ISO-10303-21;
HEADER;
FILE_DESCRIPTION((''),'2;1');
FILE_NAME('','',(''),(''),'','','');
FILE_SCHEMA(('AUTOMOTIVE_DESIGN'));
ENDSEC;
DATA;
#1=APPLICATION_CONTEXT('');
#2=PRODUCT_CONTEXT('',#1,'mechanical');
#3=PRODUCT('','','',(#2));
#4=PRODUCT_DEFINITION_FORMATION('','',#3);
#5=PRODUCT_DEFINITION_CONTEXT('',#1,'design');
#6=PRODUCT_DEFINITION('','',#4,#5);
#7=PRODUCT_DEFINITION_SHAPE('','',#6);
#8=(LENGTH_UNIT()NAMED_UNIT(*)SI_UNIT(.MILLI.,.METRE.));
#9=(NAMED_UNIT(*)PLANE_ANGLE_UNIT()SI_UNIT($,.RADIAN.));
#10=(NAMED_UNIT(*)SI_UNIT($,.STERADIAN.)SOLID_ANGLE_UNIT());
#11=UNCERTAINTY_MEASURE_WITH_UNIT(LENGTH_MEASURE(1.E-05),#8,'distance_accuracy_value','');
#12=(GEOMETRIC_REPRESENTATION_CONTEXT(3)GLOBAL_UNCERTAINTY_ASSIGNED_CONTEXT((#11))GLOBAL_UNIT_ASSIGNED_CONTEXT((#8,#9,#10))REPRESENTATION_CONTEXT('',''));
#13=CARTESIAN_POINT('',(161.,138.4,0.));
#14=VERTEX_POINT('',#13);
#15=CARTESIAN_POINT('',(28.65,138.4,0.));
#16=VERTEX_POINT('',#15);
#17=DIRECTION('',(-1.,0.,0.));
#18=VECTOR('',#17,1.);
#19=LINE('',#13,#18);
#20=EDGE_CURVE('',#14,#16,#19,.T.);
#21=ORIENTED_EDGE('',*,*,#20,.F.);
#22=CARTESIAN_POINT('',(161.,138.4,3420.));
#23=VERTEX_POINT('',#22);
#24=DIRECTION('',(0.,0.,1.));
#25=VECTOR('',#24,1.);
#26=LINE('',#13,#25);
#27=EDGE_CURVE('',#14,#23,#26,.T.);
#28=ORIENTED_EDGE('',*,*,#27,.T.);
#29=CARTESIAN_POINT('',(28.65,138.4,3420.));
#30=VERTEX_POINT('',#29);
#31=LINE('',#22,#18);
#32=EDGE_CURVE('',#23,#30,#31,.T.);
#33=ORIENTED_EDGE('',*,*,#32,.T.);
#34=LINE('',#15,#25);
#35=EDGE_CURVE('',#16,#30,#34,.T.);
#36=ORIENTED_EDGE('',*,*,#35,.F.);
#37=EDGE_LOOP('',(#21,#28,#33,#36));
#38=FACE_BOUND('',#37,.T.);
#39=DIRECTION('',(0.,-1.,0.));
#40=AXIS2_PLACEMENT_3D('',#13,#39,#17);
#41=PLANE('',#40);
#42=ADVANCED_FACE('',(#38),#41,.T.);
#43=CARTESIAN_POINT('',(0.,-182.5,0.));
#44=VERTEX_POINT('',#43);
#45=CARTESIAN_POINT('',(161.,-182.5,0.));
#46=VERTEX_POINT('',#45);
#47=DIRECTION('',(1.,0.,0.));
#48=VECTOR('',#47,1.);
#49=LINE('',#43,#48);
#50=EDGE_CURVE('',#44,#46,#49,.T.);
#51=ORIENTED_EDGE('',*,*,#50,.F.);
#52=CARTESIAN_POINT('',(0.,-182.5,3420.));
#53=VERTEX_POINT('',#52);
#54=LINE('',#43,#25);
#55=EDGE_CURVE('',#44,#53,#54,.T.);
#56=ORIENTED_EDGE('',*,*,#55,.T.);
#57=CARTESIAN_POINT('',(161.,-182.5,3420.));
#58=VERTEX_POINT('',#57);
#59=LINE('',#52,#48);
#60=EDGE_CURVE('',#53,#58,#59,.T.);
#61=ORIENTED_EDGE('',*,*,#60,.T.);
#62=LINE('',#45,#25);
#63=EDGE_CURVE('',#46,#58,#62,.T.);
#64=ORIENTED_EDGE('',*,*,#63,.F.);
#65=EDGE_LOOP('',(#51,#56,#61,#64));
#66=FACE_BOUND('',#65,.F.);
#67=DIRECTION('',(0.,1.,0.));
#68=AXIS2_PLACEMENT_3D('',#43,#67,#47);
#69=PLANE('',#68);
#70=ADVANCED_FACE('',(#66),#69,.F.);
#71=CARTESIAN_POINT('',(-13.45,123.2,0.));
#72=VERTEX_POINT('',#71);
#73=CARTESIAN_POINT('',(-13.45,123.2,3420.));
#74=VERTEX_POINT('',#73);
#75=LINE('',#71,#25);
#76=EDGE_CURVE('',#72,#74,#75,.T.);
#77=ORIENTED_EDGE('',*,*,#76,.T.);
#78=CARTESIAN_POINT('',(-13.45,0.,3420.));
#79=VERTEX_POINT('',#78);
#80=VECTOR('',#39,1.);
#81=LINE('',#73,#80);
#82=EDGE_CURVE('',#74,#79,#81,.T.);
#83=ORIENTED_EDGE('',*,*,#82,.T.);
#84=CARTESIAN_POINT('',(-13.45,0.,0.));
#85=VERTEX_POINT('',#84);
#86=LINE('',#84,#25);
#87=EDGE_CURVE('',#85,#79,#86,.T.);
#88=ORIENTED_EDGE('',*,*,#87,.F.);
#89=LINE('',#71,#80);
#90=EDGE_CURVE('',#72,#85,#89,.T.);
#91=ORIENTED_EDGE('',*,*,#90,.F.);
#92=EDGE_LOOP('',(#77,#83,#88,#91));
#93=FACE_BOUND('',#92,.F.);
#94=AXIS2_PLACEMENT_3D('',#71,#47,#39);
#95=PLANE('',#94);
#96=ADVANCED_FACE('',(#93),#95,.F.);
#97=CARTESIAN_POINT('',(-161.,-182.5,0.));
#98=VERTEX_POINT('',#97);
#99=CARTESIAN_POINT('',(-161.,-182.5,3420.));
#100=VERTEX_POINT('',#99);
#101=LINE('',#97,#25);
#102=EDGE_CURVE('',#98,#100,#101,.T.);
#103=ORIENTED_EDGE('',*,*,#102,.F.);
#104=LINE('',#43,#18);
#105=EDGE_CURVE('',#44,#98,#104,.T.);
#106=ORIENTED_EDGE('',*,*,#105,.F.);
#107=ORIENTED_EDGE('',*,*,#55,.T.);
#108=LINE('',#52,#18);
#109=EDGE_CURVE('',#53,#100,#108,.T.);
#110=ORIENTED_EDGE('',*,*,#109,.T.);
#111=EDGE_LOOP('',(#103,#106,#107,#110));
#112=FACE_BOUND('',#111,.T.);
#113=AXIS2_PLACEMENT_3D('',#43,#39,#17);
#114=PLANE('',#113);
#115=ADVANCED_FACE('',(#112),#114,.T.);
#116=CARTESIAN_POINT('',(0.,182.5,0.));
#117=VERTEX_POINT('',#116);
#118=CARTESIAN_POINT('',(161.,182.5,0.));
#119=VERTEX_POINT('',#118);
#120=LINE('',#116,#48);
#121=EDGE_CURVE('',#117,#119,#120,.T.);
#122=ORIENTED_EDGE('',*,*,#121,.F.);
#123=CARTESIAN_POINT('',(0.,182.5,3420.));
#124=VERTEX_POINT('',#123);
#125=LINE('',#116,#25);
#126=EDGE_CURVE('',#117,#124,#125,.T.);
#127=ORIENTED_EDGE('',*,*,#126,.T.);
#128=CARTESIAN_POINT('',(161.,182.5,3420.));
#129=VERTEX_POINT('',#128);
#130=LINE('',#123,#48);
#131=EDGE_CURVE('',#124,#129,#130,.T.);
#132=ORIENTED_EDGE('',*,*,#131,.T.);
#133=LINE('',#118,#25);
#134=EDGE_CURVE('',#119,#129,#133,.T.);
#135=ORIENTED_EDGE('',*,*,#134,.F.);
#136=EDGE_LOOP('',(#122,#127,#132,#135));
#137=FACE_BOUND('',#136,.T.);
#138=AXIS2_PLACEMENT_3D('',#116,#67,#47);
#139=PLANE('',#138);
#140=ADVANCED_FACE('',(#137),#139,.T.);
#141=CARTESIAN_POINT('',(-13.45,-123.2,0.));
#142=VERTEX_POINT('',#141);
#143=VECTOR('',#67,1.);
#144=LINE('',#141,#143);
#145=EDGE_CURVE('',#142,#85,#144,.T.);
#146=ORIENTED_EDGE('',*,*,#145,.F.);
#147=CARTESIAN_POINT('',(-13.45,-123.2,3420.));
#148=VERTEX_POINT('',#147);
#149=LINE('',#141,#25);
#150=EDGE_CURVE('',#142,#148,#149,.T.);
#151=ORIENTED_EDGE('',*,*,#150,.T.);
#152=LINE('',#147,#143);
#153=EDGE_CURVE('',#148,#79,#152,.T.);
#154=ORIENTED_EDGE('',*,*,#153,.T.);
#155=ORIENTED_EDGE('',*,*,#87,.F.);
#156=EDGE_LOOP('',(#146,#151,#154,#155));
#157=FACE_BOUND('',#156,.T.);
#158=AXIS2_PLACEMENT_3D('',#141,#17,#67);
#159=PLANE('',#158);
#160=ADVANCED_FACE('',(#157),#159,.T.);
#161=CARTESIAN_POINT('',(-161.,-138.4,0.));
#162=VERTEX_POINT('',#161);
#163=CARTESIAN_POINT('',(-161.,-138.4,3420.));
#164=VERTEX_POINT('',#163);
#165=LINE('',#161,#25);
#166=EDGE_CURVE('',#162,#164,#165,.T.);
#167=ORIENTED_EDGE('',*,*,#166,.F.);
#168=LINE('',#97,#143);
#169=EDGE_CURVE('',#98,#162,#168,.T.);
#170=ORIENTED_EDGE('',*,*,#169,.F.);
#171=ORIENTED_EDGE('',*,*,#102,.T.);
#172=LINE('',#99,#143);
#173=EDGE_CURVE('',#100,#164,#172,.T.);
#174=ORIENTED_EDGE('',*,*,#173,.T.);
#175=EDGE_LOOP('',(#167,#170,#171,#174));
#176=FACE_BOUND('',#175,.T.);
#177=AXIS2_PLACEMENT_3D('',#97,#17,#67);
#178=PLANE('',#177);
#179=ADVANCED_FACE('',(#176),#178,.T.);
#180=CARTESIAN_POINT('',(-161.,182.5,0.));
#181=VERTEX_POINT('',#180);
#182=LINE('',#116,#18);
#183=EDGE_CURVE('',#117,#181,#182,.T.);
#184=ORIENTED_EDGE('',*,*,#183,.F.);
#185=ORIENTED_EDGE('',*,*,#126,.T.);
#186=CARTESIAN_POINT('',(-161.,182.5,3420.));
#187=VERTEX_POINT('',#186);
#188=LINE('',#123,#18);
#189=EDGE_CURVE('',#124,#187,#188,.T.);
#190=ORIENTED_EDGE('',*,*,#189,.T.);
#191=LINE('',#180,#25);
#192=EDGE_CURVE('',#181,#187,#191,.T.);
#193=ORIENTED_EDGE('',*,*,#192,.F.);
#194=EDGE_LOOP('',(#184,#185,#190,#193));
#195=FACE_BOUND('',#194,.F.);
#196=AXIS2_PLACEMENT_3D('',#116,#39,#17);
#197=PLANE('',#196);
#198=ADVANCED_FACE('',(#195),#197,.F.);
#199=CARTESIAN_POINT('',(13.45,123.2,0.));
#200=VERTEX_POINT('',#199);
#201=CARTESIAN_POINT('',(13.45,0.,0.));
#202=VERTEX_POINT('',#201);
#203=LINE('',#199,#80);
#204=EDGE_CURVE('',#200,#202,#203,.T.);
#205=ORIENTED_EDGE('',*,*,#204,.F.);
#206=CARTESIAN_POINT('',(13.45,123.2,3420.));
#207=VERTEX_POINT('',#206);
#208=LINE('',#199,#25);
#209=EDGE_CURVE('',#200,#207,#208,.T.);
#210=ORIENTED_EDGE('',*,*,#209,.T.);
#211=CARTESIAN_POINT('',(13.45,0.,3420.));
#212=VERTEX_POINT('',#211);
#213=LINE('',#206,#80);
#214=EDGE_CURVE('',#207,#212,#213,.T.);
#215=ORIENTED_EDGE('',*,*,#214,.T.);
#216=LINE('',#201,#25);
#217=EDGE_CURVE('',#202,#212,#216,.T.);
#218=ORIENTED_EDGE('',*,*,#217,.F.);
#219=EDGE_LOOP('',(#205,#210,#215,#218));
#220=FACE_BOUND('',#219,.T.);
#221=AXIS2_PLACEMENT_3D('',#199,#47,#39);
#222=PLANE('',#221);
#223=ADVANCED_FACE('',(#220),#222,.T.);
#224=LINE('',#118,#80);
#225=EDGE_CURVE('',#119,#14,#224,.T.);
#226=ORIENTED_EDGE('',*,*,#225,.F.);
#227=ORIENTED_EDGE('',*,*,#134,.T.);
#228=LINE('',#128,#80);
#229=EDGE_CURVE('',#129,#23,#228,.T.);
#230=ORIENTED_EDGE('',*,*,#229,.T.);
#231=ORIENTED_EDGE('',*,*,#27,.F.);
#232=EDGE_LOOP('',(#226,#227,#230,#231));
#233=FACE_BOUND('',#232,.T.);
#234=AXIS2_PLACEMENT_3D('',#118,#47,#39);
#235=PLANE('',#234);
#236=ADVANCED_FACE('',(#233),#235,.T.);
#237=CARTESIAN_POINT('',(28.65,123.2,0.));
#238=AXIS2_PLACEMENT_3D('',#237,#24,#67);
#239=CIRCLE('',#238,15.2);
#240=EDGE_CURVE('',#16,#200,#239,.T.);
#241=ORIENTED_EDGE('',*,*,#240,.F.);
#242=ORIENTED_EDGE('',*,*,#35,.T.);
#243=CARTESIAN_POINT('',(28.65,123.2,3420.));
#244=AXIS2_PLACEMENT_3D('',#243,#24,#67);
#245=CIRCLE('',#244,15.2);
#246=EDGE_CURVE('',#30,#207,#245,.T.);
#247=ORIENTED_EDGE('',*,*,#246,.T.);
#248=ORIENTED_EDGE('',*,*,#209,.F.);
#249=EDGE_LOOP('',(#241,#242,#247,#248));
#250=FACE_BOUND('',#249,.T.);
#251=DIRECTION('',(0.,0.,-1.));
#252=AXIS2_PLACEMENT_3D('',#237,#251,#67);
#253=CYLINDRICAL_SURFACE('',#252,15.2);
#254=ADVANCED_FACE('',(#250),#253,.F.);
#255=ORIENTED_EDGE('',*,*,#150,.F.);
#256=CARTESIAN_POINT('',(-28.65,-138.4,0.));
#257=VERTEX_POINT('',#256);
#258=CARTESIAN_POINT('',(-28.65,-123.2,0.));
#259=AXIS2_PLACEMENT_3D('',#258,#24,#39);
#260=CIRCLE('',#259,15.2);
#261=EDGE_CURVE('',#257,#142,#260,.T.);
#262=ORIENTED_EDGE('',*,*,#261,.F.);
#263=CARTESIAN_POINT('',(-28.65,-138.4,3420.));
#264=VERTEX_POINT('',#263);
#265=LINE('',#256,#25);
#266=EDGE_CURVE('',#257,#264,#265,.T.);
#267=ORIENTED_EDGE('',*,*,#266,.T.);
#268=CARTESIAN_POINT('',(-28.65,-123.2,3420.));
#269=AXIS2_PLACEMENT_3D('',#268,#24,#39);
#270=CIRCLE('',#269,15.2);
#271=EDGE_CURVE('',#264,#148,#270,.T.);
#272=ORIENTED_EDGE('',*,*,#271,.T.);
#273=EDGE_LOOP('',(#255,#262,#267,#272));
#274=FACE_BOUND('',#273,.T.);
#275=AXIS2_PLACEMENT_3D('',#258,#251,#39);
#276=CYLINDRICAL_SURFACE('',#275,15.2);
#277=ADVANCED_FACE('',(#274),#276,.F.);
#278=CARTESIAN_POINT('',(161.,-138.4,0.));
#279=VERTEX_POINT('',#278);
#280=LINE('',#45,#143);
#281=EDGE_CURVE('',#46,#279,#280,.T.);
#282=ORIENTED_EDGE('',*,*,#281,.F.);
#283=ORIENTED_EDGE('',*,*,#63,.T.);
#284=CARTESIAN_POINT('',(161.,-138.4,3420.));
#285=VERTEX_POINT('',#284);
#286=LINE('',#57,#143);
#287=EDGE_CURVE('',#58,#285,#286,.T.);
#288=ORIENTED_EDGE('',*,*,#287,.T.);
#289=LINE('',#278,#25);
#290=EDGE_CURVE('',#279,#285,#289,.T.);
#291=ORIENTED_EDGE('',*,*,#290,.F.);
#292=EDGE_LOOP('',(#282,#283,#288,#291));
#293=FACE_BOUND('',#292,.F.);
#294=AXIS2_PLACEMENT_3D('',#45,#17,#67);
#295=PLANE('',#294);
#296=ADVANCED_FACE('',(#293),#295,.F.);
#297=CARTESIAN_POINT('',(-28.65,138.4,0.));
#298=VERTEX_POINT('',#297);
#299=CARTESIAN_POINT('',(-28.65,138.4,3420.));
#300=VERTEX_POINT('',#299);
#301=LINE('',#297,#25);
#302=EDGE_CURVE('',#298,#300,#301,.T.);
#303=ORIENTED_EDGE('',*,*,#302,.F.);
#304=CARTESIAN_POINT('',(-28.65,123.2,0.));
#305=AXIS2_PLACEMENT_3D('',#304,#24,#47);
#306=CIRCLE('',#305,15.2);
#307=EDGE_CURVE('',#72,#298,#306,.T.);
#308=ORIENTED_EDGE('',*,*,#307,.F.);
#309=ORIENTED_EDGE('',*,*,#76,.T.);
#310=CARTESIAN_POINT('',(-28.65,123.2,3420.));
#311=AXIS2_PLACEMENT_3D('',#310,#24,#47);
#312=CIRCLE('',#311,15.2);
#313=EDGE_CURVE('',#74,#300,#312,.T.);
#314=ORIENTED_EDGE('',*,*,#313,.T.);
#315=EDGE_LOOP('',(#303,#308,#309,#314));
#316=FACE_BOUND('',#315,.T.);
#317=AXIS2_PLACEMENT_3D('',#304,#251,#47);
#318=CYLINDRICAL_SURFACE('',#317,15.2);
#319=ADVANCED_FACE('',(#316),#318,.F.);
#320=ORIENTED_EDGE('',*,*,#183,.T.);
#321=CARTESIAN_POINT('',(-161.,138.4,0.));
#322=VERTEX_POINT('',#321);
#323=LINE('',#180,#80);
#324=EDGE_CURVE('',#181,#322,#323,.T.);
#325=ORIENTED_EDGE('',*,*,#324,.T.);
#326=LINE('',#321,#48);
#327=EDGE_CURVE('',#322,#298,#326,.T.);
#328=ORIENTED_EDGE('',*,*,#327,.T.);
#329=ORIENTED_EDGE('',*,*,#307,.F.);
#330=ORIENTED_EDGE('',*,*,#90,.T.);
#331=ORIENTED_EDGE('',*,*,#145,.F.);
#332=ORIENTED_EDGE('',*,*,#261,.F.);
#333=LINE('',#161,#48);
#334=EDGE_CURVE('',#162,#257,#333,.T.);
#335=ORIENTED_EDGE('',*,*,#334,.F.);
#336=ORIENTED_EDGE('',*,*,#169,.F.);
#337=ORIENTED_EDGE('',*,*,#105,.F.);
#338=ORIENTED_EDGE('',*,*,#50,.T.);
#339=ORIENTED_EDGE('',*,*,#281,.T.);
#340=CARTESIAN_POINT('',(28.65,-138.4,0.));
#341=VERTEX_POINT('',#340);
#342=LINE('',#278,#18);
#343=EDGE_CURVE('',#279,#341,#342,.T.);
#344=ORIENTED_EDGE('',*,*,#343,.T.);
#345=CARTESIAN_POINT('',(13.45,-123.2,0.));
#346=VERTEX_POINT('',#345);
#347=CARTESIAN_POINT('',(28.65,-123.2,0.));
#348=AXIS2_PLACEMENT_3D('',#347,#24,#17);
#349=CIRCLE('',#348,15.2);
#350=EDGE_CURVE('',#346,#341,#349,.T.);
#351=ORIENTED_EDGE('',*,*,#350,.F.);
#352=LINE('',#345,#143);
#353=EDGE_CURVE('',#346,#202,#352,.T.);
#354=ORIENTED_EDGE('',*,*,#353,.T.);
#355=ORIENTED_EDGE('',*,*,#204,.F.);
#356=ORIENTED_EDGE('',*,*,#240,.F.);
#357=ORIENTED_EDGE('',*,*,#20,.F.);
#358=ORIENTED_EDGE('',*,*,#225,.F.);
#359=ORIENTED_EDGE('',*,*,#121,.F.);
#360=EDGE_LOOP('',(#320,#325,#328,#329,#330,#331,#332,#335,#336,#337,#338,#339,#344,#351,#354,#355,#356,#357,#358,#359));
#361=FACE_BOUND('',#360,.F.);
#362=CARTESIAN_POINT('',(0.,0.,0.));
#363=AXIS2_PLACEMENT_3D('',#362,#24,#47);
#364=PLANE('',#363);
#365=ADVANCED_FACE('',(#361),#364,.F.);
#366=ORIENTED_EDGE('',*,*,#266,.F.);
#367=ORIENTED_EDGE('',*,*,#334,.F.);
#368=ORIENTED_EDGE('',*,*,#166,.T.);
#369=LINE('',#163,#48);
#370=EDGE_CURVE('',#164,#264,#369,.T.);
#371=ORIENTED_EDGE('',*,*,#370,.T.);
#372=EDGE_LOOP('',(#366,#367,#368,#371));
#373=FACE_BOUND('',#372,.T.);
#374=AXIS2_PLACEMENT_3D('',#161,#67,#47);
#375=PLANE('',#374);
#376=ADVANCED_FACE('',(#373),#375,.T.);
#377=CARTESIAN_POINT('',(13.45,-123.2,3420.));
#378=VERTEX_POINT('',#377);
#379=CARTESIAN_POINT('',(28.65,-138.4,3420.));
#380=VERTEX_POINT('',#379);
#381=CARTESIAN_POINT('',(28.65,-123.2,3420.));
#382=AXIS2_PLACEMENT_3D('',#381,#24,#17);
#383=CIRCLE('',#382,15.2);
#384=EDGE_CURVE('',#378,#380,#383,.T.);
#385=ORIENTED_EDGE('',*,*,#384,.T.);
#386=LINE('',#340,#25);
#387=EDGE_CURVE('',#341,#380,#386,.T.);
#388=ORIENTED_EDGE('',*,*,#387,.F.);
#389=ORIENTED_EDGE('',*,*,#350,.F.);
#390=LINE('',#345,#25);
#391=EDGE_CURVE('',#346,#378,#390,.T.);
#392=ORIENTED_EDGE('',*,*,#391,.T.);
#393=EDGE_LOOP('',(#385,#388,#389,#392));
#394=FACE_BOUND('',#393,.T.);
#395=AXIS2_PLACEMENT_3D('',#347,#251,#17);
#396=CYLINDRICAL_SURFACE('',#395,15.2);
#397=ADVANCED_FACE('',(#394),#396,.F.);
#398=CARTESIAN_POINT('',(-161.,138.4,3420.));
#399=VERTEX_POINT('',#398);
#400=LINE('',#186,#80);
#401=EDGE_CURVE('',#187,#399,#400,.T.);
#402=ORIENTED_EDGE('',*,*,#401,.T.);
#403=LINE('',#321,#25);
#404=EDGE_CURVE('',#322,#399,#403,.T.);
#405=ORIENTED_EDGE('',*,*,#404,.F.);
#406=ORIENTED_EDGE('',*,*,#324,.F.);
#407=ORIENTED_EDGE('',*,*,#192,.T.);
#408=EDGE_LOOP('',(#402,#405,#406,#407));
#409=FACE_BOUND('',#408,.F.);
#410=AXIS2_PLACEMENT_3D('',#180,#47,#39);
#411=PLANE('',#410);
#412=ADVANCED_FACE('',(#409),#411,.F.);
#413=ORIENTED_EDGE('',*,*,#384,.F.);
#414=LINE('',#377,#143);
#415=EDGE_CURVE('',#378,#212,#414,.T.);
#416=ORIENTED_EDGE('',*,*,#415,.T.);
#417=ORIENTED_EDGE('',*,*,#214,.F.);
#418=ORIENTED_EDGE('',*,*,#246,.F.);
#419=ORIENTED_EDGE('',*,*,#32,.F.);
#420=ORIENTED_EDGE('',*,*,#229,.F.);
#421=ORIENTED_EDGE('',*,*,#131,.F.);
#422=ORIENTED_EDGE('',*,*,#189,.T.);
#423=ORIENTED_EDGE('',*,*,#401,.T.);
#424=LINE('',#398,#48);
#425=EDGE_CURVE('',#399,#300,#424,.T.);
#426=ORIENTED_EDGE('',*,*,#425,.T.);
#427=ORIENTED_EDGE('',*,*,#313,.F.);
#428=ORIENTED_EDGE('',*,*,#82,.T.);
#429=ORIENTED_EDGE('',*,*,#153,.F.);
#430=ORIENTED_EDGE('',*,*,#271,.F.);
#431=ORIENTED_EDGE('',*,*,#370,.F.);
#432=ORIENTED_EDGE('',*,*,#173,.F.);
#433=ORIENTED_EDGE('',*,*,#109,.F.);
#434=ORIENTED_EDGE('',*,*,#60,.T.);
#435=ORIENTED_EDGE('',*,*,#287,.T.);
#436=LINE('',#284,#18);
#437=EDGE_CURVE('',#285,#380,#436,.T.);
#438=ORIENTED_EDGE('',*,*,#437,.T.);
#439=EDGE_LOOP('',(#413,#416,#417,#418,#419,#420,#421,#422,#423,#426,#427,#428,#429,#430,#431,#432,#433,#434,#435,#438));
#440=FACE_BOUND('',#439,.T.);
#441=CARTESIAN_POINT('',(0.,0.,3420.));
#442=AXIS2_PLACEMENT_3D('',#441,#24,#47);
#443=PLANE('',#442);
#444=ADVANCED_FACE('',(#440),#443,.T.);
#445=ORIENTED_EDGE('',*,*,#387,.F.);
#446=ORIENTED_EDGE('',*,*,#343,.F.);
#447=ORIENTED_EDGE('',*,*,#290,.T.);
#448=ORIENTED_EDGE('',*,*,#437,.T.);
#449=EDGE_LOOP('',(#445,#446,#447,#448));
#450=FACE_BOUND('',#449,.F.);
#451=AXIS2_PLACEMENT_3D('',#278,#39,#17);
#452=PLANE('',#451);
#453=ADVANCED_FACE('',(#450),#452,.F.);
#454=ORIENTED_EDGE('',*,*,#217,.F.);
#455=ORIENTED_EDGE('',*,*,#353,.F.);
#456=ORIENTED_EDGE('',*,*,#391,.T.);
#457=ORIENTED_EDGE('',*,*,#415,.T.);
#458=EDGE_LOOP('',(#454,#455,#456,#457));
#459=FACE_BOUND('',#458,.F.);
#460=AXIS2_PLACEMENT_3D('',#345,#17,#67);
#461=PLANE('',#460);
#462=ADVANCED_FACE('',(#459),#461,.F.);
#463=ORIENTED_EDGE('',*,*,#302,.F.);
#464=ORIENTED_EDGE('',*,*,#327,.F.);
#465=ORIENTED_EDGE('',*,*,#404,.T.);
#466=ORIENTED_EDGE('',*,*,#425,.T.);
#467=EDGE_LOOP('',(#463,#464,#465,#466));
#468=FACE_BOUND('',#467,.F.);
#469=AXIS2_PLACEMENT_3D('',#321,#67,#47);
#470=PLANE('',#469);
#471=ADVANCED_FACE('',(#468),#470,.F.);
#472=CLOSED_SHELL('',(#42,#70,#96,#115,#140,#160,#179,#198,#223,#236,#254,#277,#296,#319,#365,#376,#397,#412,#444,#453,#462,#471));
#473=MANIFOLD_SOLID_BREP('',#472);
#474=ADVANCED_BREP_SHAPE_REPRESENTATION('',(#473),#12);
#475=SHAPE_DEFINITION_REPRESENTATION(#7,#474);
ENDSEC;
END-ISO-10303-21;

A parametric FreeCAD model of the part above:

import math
import FreeCAD as App
import Part
import Sketcher
Q = App.Units.Quantity

doc = App.newDocument("Part")
params = doc.addObject("Spreadsheet::Sheet", "Params")
for row, (alias, value) in enumerate([
    ("sketch1_radius", "15.2 mm"),
    ("sketch1_height", "44.1 mm"),
    ("pad1_length", "3420 mm"),
], start=1):
    params.set(f"A{row}", alias)
    params.set(f"B{row}", "=" + value)
    params.setAlias(f"B{row}", alias)

body = doc.addObject("PartDesign::Body", "Body")

# Sketch on XY plane
sketch1 = body.newObject("Sketcher::SketchObject", "Sketch")
sketch1.AttachmentSupport = (doc.getObject("XY_Plane"), [""])
sketch1.MapMode = "FlatFace"
sketch1.addGeometry([
    Part.LineSegment(App.Vector(-161, -138, 0), App.Vector(-161, -182, 0)),  # 0
    Part.LineSegment(App.Vector(-161, -182, 0), App.Vector(161, -182, 0)),  # 1
    Part.LineSegment(App.Vector(161, -182, 0), App.Vector(161, -138, 0)),  # 2
    Part.LineSegment(App.Vector(161, -138, 0), App.Vector(29, -138, 0)),  # 3
    Part.ArcOfCircle(Part.Circle(App.Vector(29, -123, 0), App.Vector(0, 0, 1), 15), math.radians(180), math.radians(270)),  # 4
    Part.LineSegment(App.Vector(13, -123, 0), App.Vector(13, 123, 0)),  # 5
    Part.ArcOfCircle(Part.Circle(App.Vector(29, 123, 0), App.Vector(0, 0, 1), 15), math.radians(90), math.radians(180)),  # 6
    Part.LineSegment(App.Vector(29, 138, 0), App.Vector(161, 138, 0)),  # 7
    Part.LineSegment(App.Vector(161, 138, 0), App.Vector(161, 182, 0)),  # 8
    Part.LineSegment(App.Vector(161, 182, 0), App.Vector(-161, 182, 0)),  # 9
    Part.LineSegment(App.Vector(-161, 182, 0), App.Vector(-161, 138, 0)),  # 10
    Part.LineSegment(App.Vector(-161, 138, 0), App.Vector(-29, 138, 0)),  # 11
    Part.ArcOfCircle(Part.Circle(App.Vector(-29, 123, 0), App.Vector(0, 0, 1), 15), math.radians(0), math.radians(90)),  # 12
    Part.LineSegment(App.Vector(-13, 123, 0), App.Vector(-13, -123, 0)),  # 13
    Part.ArcOfCircle(Part.Circle(App.Vector(-29, -123, 0), App.Vector(0, 0, 1), 15), math.radians(-90), math.radians(0)),  # 14
    Part.LineSegment(App.Vector(-29, -138, 0), App.Vector(-161, -138, 0)),  # 15
], False)
sketch1.addConstraint([
    Sketcher.Constraint("Coincident", 0, 2, 1, 1),
    Sketcher.Constraint("Coincident", 1, 2, 2, 1),
    Sketcher.Constraint("Coincident", 2, 2, 3, 1),
    Sketcher.Constraint("Tangent", 3, 2, 4, 2),
    Sketcher.Constraint("Tangent", 4, 1, 5, 1),
    Sketcher.Constraint("Tangent", 5, 2, 6, 2),
    Sketcher.Constraint("Tangent", 6, 1, 7, 1),
    Sketcher.Constraint("Coincident", 7, 2, 8, 1),
    Sketcher.Constraint("Coincident", 8, 2, 9, 1),
    Sketcher.Constraint("Coincident", 9, 2, 10, 1),
    Sketcher.Constraint("Coincident", 10, 2, 11, 1),
    Sketcher.Constraint("Tangent", 11, 2, 12, 2),
    Sketcher.Constraint("Tangent", 12, 1, 13, 1),
    Sketcher.Constraint("Tangent", 13, 2, 14, 2),
    Sketcher.Constraint("Tangent", 14, 1, 15, 1),
    Sketcher.Constraint("Coincident", 15, 2, 0, 1),
    Sketcher.Constraint("Vertical", 0),
    Sketcher.Constraint("Horizontal", 1),
    Sketcher.Constraint("Vertical", 2),
    Sketcher.Constraint("Horizontal", 3),
    Sketcher.Constraint("Vertical", 5),
    Sketcher.Constraint("Horizontal", 7),
    Sketcher.Constraint("Vertical", 8),
    Sketcher.Constraint("Horizontal", 9),
    Sketcher.Constraint("Vertical", 10),
    Sketcher.Constraint("Horizontal", 11),
    Sketcher.Constraint("Vertical", 13),
    Sketcher.Constraint("Horizontal", 15),
    Sketcher.Constraint("Equal", 4, 6),
    Sketcher.Constraint("Equal", 6, 12),
    Sketcher.Constraint("Equal", 12, 14),
    Sketcher.Constraint("Symmetric", 4, 3, 12, 3, -1, 1),
    Sketcher.Constraint("Symmetric", 0, 2, 8, 2, -1, 1),
    Sketcher.Constraint("Symmetric", 7, 2, 10, 2, -2),
    Sketcher.Constraint("Symmetric", 2, 2, 15, 2, -2),
    Sketcher.Constraint("Radius", 4, Q("15.2 mm")),
    Sketcher.Constraint("DistanceY", 0, 2, 0, 1, Q("44.1 mm")),
    Sketcher.Constraint("DistanceX", 0, 2, -1, 1, Q("161 mm")),
    Sketcher.Constraint("DistanceY", 0, 2, -1, 1, Q("182.5 mm")),
    Sketcher.Constraint("DistanceX", -1, 1, 4, 1, Q("13.45 mm")),
])
sketch1.setExpression("Constraints[35]", "Params.sketch1_radius")
sketch1.setExpression("Constraints[36]", "Params.sketch1_height")
pad1 = body.newObject("PartDesign::Pad", "Pad")
pad1.Profile = sketch1
pad1.setExpression("Length", "Params.pad1_length")

doc.recompute()
